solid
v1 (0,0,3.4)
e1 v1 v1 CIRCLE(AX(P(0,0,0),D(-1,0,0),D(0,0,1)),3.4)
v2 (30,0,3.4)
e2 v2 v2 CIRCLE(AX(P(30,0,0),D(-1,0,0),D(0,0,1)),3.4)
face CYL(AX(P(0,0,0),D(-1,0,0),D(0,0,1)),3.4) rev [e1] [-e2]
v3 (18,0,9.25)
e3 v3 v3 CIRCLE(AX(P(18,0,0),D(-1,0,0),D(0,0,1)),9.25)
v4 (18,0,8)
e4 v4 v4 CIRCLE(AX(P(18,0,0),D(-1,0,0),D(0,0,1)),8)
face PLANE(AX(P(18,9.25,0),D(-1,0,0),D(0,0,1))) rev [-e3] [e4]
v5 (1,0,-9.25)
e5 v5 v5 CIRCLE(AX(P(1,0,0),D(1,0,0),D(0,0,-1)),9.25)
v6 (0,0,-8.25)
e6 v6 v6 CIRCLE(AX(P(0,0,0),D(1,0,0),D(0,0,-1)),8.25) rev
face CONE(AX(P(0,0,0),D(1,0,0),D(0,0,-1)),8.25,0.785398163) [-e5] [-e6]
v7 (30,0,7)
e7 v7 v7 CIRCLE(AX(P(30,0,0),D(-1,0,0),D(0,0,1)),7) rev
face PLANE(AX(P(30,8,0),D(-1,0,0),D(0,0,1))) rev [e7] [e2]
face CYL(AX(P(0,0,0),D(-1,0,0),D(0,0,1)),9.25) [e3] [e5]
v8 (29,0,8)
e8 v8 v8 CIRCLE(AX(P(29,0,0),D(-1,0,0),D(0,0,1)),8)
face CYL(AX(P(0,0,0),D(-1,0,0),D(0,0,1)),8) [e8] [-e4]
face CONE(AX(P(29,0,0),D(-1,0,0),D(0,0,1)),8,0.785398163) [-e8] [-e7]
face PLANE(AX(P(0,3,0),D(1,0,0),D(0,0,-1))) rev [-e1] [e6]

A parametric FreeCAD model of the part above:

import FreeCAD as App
import Part
import Sketcher
from FreeCAD import Vector
Q = App.Units.Quantity


def edges_at(feature, points):
    """Names of the edges that pass closest to the given points."""
    edges = feature.Shape.Edges
    near = lambda p: min(range(len(edges)), key=lambda i: edges[i].distToShape(Part.Vertex(*p))[0])
    return sorted({f"Edge{near(p) + 1}" for p in points})

doc = App.newDocument("Part")
body = doc.addObject("PartDesign::Body", "Body")

# Sketch on XY plane
sketch1 = doc.addObject("Sketcher::SketchObject", "Sketch")
body.addObject(sketch1)
sketch1.AttachmentSupport = (doc.XY_Plane, [""])
sketch1.MapMode = "FlatFace"
sketch1.addGeometry(Part.LineSegment(Vector(0, 9.2, 0), Vector(0, 3, 0)), False)
sketch1.addGeometry(Part.LineSegment(Vector(0, 3, 0), Vector(30, 3, 0)), False)
sketch1.addGeometry(Part.LineSegment(Vector(30, 3, 0), Vector(30, 8, 0)), False)
sketch1.addGeometry(Part.LineSegment(Vector(30, 8, 0), Vector(18, 8, 0)), False)
sketch1.addGeometry(Part.LineSegment(Vector(18, 8, 0), Vector(18, 9.2, 0)), False)
sketch1.addGeometry(Part.LineSegment(Vector(18, 9.2, 0), Vector(0, 9.2, 0)), False)
sketch1.addConstraint(Sketcher.Constraint("Coincident", 0, 2, 1, 1))
sketch1.addConstraint(Sketcher.Constraint("Coincident", 1, 2, 2, 1))
sketch1.addConstraint(Sketcher.Constraint("Coincident", 2, 2, 3, 1))
sketch1.addConstraint(Sketcher.Constraint("Coincident", 3, 2, 4, 1))
sketch1.addConstraint(Sketcher.Constraint("Coincident", 4, 2, 5, 1))
sketch1.addConstraint(Sketcher.Constraint("Coincident", 5, 2, 0, 1))
sketch1.addConstraint(Sketcher.Constraint("Vertical", 0))
sketch1.addConstraint(Sketcher.Constraint("Horizontal", 1))
sketch1.addConstraint(Sketcher.Constraint("Vertical", 2))
sketch1.addConstraint(Sketcher.Constraint("Horizontal", 3))
sketch1.addConstraint(Sketcher.Constraint("Vertical", 4))
sketch1.addConstraint(Sketcher.Constraint("Horizontal", 5))
sketch1.addConstraint(Sketcher.Constraint("PointOnObject", 0, 2, -2))
sketch1.addConstraint(Sketcher.Constraint("DistanceX", 1, 1, 1, 2, Q("30 mm")))
sketch1.addConstraint(Sketcher.Constraint("DistanceX", 3, 2, 3, 1, Q("12 mm")))
sketch1.addConstraint(Sketcher.Constraint("DistanceY", 2, 1, 2, 2, Q("5 mm")))
sketch1.addConstraint(Sketcher.Constraint("DistanceY", -1, 1, 0, 2, Q("3 mm")))
sketch1.addConstraint(Sketcher.Constraint("DistanceY", 0, 2, 0, 1, Q("6.25 mm")))
revolution = doc.addObject("PartDesign::Revolution", "Revolution")
body.addObject(revolution)
revolution.Profile = sketch1
revolution.ReferenceAxis = (sketch1, ["H_Axis"])
revolution.Angle = 360

# Sketch on YZ plane
sketch2 = doc.addObject("Sketcher::SketchObject", "Sketch001")
body.addObject(sketch2)
sketch2.AttachmentSupport = (doc.YZ_Plane, [""])
sketch2.MapMode = "FlatFace"
sketch2.addGeometry(Part.Circle(Vector(0, 0, 0), Vector(0, 0, 1), 3.4), False)
sketch2.addConstraint(Sketcher.Constraint("Coincident", 0, 3, -1, 1))
sketch2.addConstraint(Sketcher.Constraint("Diameter", 0, Q("6.8 mm")))
doc.recompute()
hole = doc.addObject("PartDesign::Hole", "Hole")
body.addObject(hole)
hole.Profile = sketch2
hole.ThreadType = "None"
hole.Diameter = 6.8
hole.DepthType = "ThroughAll"
hole.Reversed = True
doc.recompute()

chamfer = doc.addObject("PartDesign::Chamfer", "Chamfer")
body.addObject(chamfer)
chamfer.Base = (hole, edges_at(hole, [(30, 0, -8), (0, 0, -9.25)]))
chamfer.Size = 1

doc.recompute()
